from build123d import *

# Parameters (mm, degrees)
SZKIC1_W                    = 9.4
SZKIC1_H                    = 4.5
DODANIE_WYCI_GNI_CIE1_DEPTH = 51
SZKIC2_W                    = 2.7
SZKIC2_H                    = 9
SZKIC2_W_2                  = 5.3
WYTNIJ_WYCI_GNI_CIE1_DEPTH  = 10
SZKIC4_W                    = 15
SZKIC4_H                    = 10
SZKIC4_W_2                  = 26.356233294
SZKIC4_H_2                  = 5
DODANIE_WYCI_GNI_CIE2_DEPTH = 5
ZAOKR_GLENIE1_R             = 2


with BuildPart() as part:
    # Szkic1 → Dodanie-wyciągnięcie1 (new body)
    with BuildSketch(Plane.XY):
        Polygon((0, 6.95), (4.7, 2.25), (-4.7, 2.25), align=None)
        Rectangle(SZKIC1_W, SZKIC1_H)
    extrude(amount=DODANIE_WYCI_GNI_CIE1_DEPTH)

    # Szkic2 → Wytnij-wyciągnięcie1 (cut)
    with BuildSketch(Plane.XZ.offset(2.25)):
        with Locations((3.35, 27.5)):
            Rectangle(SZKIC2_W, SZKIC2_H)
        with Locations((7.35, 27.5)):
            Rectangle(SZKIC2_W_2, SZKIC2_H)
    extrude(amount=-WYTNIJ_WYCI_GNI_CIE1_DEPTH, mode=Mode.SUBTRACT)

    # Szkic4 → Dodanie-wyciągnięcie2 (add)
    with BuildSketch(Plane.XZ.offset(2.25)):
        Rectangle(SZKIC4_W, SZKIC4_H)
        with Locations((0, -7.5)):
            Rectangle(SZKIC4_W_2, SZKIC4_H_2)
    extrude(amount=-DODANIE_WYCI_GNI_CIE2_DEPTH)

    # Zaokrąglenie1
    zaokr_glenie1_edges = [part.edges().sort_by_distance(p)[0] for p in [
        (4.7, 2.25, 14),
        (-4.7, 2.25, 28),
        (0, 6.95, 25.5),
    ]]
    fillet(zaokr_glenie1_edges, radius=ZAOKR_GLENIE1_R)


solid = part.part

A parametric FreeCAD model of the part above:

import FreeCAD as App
import Part
import Sketcher
from FreeCAD import Vector
Q = App.Units.Quantity


def edges_at(feature, points):
    """Names of the edges that pass closest to the given points."""
    edges = feature.Shape.Edges
    near = lambda p: min(range(len(edges)), key=lambda i: edges[i].distToShape(Part.Vertex(*p))[0])
    return sorted({f"Edge{near(p) + 1}" for p in points})

doc = App.newDocument("Part")
body = doc.addObject("PartDesign::Body", "Body")

sketch1 = doc.addObject("Sketcher::SketchObject", "Sketch")
body.addObject(sketch1)
sketch1.AttachmentSupport = (doc.XY_Plane, [""])
sketch1.MapMode = "FlatFace"
sketch1.addGeometry([
    Part.LineSegment(Vector(4.7, 2.2, 0), Vector(0, 7, 0)),
    Part.LineSegment(Vector(0, 7, 0), Vector(-4.7, 2.2, 0)),
    Part.LineSegment(Vector(-4.7, 2.2, 0), Vector(-4.7, -2.2, 0)),
    Part.LineSegment(Vector(-4.7, -2.2, 0), Vector(4.7, -2.2, 0)),
    Part.LineSegment(Vector(4.7, -2.2, 0), Vector(4.7, 2.2, 0)),
], False)
sketch1.addConstraint([
    Sketcher.Constraint("Coincident", 0, 2, 1, 1),
    Sketcher.Constraint("Coincident", 1, 2, 2, 1),
    Sketcher.Constraint("Coincident", 2, 2, 3, 1),
    Sketcher.Constraint("Coincident", 3, 2, 4, 1),
    Sketcher.Constraint("Coincident", 4, 2, 0, 1),
    Sketcher.Constraint("Vertical", 2),
    Sketcher.Constraint("Horizontal", 3),
    Sketcher.Constraint("Vertical", 4),
    Sketcher.Constraint("Symmetric", 1, 2, 3, 2, -1, 1),
    Sketcher.Constraint("PointOnObject", 0, 2, -2),
    Sketcher.Constraint("Perpendicular", 0, 1),
    Sketcher.Constraint("Horizontal", 1, 2, 4, 2),
    Sketcher.Constraint("DistanceX", 3, 1, 3, 2, Q("9.4 mm")),
    Sketcher.Constraint("DistanceY", 2, 2, 2, 1, Q("4.5 mm")),
])
pad1 = doc.addObject("PartDesign::Pad", "Pad")
body.addObject(pad1)
pad1.Profile = sketch1
pad1.Length = 51

sketch2 = doc.addObject("Sketcher::SketchObject", "Sketch001")
body.addObject(sketch2)
sketch2.AttachmentSupport = (doc.XZ_Plane, [""])
sketch2.MapMode = "FlatFace"
sketch2.AttachmentOffset = App.Placement(Vector(0, 0, 2.25), App.Rotation())
sketch2.addGeometry([
    Part.LineSegment(Vector(2, 32, 0), Vector(2, 23, 0)),
    Part.LineSegment(Vector(2, 23, 0), Vector(10, 23, 0)),
    Part.LineSegment(Vector(10, 23, 0), Vector(10, 32, 0)),
    Part.LineSegment(Vector(10, 32, 0), Vector(2, 32, 0)),
], False)
sketch2.addConstraint([
    Sketcher.Constraint("Coincident", 0, 2, 1, 1),
    Sketcher.Constraint("Coincident", 1, 2, 2, 1),
    Sketcher.Constraint("Coincident", 2, 2, 3, 1),
    Sketcher.Constraint("Coincident", 3, 2, 0, 1),
    Sketcher.Constraint("Vertical", 0),
    Sketcher.Constraint("Horizontal", 1),
    Sketcher.Constraint("Vertical", 2),
    Sketcher.Constraint("Horizontal", 3),
    Sketcher.Constraint("DistanceX", 1, 1, 1, 2, Q("8 mm")),
    Sketcher.Constraint("DistanceY", 0, 2, 0, 1, Q("9 mm")),
    Sketcher.Constraint("DistanceX", -1, 1, 0, 2, Q("2 mm")),
    Sketcher.Constraint("DistanceY", -1, 1, 0, 2, Q("23 mm")),
])
pocket1 = doc.addObject("PartDesign::Pocket", "Pocket")
body.addObject(pocket1)
pocket1.Profile = sketch2
pocket1.Length = 10

sketch3 = doc.addObject("Sketcher::SketchObject", "Sketch002")
body.addObject(sketch3)
sketch3.AttachmentSupport = (doc.XZ_Plane, [""])
sketch3.MapMode = "FlatFace"
sketch3.AttachmentOffset = App.Placement(Vector(0, 0, 2.25), App.Rotation())
sketch3.addGeometry([
    Part.LineSegment(Vector(-8, 5, 0), Vector(-8, -5, 0)),
    Part.LineSegment(Vector(-8, -5, 0), Vector(-13, -5, 0)),
    Part.LineSegment(Vector(-13, -5, 0), Vector(-13, -10, 0)),
    Part.LineSegment(Vector(-13, -10, 0), Vector(13, -10, 0)),
    Part.LineSegment(Vector(13, -10, 0), Vector(13, -5, 0)),
    Part.LineSegment(Vector(13, -5, 0), Vector(8, -5, 0)),
    Part.LineSegment(Vector(8, -5, 0), Vector(8, 5, 0)),
    Part.LineSegment(Vector(8, 5, 0), Vector(-8, 5, 0)),
], False)
sketch3.addConstraint([
    Sketcher.Constraint("Coincident", 0, 2, 1, 1),
    Sketcher.Constraint("Coincident", 1, 2, 2, 1),
    Sketcher.Constraint("Coincident", 2, 2, 3, 1),
    Sketcher.Constraint("Coincident", 3, 2, 4, 1),
    Sketcher.Constraint("Coincident", 4, 2, 5, 1),
    Sketcher.Constraint("Coincident", 5, 2, 6, 1),
    Sketcher.Constraint("Coincident", 6, 2, 7, 1),
    Sketcher.Constraint("Coincident", 7, 2, 0, 1),
    Sketcher.Constraint("Vertical", 0),
    Sketcher.Constraint("Horizontal", 1),
    Sketcher.Constraint("Vertical", 2),
    Sketcher.Constraint("Horizontal", 3),
    Sketcher.Constraint("Vertical", 4),
    Sketcher.Constraint("Horizontal", 5),
    Sketcher.Constraint("Vertical", 6),
    Sketcher.Constraint("Horizontal", 7),
    Sketcher.Constraint("Symmetric", 0, 2, 6, 2, -1, 1),
    Sketcher.Constraint("Symmetric", 1, 2, 4, 2, -2),
    Sketcher.Constraint("DistanceX", 7, 2, 7, 1, Q("15 mm")),
    Sketcher.Constraint("DistanceY", 0, 2, 0, 1, Q("10 mm")),
    Sketcher.Constraint("DistanceY", 2, 2, 2, 1, Q("5 mm")),
    Sketcher.Constraint("DistanceX", 1, 2, 1, 1, Q("5.678117 mm")),
])
pad2 = doc.addObject("PartDesign::Pad", "Pad001")
body.addObject(pad2)
pad2.Profile = sketch3
pad2.Length = 5
pad2.Reversed = True
doc.recompute()

fillet = doc.addObject("PartDesign::Fillet", "Fillet")
body.addObject(fillet)
fillet.Base = (pad2, edges_at(pad2, [(4.7, 2.25, 14), (-4.7, 2.25, 28), (0, 6.95, 25.5)]))
fillet.Radius = 2

doc.recompute()
